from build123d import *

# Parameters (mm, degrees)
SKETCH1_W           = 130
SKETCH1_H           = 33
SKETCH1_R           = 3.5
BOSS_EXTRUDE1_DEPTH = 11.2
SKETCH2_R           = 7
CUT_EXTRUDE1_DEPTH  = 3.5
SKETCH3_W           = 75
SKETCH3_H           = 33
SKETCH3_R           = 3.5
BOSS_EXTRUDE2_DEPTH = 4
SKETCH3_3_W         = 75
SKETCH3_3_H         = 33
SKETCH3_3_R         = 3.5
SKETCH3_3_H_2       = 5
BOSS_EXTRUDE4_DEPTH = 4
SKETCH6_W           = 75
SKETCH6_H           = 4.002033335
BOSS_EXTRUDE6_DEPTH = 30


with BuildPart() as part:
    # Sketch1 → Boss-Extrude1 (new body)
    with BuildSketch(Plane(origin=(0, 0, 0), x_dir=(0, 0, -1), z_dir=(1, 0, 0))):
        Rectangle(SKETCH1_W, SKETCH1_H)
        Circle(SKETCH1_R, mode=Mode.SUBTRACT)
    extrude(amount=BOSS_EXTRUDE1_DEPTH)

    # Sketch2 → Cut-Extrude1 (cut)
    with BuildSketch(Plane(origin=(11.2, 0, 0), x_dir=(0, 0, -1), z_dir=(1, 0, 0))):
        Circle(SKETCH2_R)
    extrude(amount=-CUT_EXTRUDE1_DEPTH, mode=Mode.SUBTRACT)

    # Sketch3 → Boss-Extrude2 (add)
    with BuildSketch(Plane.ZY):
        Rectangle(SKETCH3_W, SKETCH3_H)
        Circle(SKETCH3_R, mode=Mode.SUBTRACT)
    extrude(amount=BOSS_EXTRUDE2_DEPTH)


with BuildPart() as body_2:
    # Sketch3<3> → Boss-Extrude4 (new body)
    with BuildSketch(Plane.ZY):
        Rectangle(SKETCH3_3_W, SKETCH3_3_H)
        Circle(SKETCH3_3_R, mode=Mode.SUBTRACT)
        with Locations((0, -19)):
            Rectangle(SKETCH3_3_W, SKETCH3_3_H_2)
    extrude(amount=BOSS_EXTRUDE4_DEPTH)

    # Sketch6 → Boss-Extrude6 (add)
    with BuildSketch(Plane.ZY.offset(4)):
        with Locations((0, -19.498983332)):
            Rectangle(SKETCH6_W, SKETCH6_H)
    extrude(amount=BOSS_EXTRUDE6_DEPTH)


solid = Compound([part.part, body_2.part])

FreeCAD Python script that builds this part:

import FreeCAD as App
import Part
import Sketcher

V = App.Vector
Q = App.Units.Quantity


def add_polygon(sketch, points):
    """Adds a closed chain of lines whose ends are joined by coincident constraints."""
    first, n = sketch.GeometryCount, len(points)
    for a, b in zip(points, points[1:] + points[:1]):
        sketch.addGeometry(Part.LineSegment(App.Vector(*a, 0), App.Vector(*b, 0)), False)
    for i in range(n):
        sketch.addConstraint(Sketcher.Constraint("Coincident", first + i, 2, first + (i + 1) % n, 1))

doc = App.newDocument("Part")
params = doc.addObject("Spreadsheet::Sheet", "Params")
for row, (alias, value) in enumerate([
    ("sketch1_diameter", "7 mm"),
    ("sketch1_width", "33 mm"),
    ("sketch1_height", "130 mm"),
    ("pad1_length", "11.2 mm"),
    ("sketch2_diameter", "14 mm"),
    ("pocket1_length", "3.5 mm"),
    ("sketch3_diameter", "7 mm"),
    ("sketch3_width", "33 mm"),
    ("sketch3_height", "75 mm"),
    ("pad2_length", "4 mm"),
    ("sketch4_diameter", "7 mm"),
    ("sketch4_width", "38 mm"),
    ("sketch4_height", "75 mm"),
    ("pad3_length", "4 mm"),
    ("sketch5_height", "75 mm"),
    ("pad4_length", "30 mm"),
], start=1):
    params.set(f"A{row}", alias)
    params.set(f"B{row}", "=" + value)
    params.setAlias(f"B{row}", alias)

body = doc.addObject("PartDesign::Body", "Body")

# Sketch on YZ plane
sketch1 = doc.addObject("Sketcher::SketchObject", "Sketch")
body.addObject(sketch1)
sketch1.AttachmentSupport = (doc.YZ_Plane, [""])
sketch1.MapMode = "FlatFace"
add_polygon(sketch1, [(16.5, 65), (-16.5, 65), (-16.5, -65), (16.5, -65)])  # lines 0-3
sketch1.addGeometry(Part.Circle(V(0, 0, 0), V(0, 0, 1), 3.5), False)  # 4
sketch1.addConstraint(Sketcher.Constraint("Horizontal", 0))
sketch1.addConstraint(Sketcher.Constraint("Vertical", 1))
sketch1.addConstraint(Sketcher.Constraint("Horizontal", 2))
sketch1.addConstraint(Sketcher.Constraint("Vertical", 3))
sketch1.addConstraint(Sketcher.Constraint("Coincident", 4, 3, -1, 1))
sketch1.addConstraint(Sketcher.Constraint("Symmetric", 0, 2, 2, 2, -1, 1))
sketch1.addConstraint(Sketcher.Constraint("Diameter", 4, Q("7 mm")))
sketch1.addConstraint(Sketcher.Constraint("DistanceX", 0, 2, 0, 1, Q("33 mm")))
sketch1.addConstraint(Sketcher.Constraint("DistanceY", 1, 2, 1, 1, Q("130 mm")))
sketch1.setExpression("Constraints[10]", "Params.sketch1_diameter")
sketch1.setExpression("Constraints[11]", "Params.sketch1_width")
sketch1.setExpression("Constraints[12]", "Params.sketch1_height")
pad1 = doc.addObject("PartDesign::Pad", "Pad")
body.addObject(pad1)
pad1.Profile = sketch1
pad1.setExpression("Length", "Params.pad1_length")

# Sketch on YZ plane
sketch2 = doc.addObject("Sketcher::SketchObject", "Sketch001")
body.addObject(sketch2)
sketch2.AttachmentSupport = (doc.YZ_Plane, [""])
sketch2.MapMode = "FlatFace"
sketch2.AttachmentOffset = App.Placement(V(0, 0, 11.2), App.Rotation())
sketch2.addGeometry(Part.Circle(V(0, 0, 0), V(0, 0, 1), 7), False)
sketch2.addConstraint(Sketcher.Constraint("Coincident", 0, 3, -1, 1))
sketch2.addConstraint(Sketcher.Constraint("Diameter", 0, Q("14 mm")))
sketch2.setExpression("Constraints[1]", "Params.sketch2_diameter")
pocket1 = doc.addObject("PartDesign::Pocket", "Pocket")
body.addObject(pocket1)
pocket1.Profile = sketch2
pocket1.setExpression("Length", "Params.pocket1_length")

# Sketch on YZ plane
sketch3 = doc.addObject("Sketcher::SketchObject", "Sketch002")
body.addObject(sketch3)
sketch3.AttachmentSupport = (doc.YZ_Plane, [""])
sketch3.MapMode = "FlatFace"
add_polygon(sketch3, [(16.5, -37.5), (-16.5, -37.5), (-16.5, 37.5), (16.5, 37.5)])  # lines 0-3
sketch3.addGeometry(Part.Circle(V(0, 0, 0), V(0, 0, 1), 3.5), False)  # 4
sketch3.addConstraint(Sketcher.Constraint("Horizontal", 0))
sketch3.addConstraint(Sketcher.Constraint("Vertical", 1))
sketch3.addConstraint(Sketcher.Constraint("Horizontal", 2))
sketch3.addConstraint(Sketcher.Constraint("Vertical", 3))
sketch3.addConstraint(Sketcher.Constraint("Coincident", 4, 3, -1, 1))
sketch3.addConstraint(Sketcher.Constraint("Symmetric", 0, 2, 2, 2, -1, 1))
sketch3.addConstraint(Sketcher.Constraint("Diameter", 4, Q("7 mm")))
sketch3.addConstraint(Sketcher.Constraint("DistanceX", 0, 2, 0, 1, Q("33 mm")))
sketch3.addConstraint(Sketcher.Constraint("DistanceY", 1, 1, 1, 2, Q("75 mm")))
sketch3.setExpression("Constraints[10]", "Params.sketch3_diameter")
sketch3.setExpression("Constraints[11]", "Params.sketch3_width")
sketch3.setExpression("Constraints[12]", "Params.sketch3_height")
pad2 = doc.addObject("PartDesign::Pad", "Pad001")
body.addObject(pad2)
pad2.Profile = sketch3
pad2.setExpression("Length", "Params.pad2_length")
pad2.Reversed = True
body2 = doc.addObject("PartDesign::Body", "Body001")

# Sketch on YZ plane
sketch4 = doc.addObject("Sketcher::SketchObject", "Sketch003")
body2.addObject(sketch4)
sketch4.AttachmentSupport = (doc.getObject("YZ_Plane001"), [""])
sketch4.MapMode = "FlatFace"
add_polygon(sketch4, [(16.5, -37.5), (-21.5, -37.5), (-21.5, 37.5), (16.5, 37.5)])  # lines 0-3
sketch4.addGeometry(Part.Circle(V(0, 0, 0), V(0, 0, 1), 3.5), False)  # 4
sketch4.addConstraint(Sketcher.Constraint("Horizontal", 0))
sketch4.addConstraint(Sketcher.Constraint("Vertical", 1))
sketch4.addConstraint(Sketcher.Constraint("Horizontal", 2))
sketch4.addConstraint(Sketcher.Constraint("Vertical", 3))
sketch4.addConstraint(Sketcher.Constraint("Coincident", 4, 3, -1, 1))
sketch4.addConstraint(Sketcher.Constraint("Diameter", 4, Q("7 mm")))
sketch4.addConstraint(Sketcher.Constraint("DistanceX", 0, 2, 0, 1, Q("38 mm")))
sketch4.addConstraint(Sketcher.Constraint("DistanceY", 1, 1, 1, 2, Q("75 mm")))
sketch4.addConstraint(Sketcher.Constraint("DistanceX", 0, 2, -1, 1, Q("21.5 mm")))
sketch4.addConstraint(Sketcher.Constraint("DistanceY", 0, 2, -1, 1, Q("37.5 mm")))
sketch4.setExpression("Constraints[9]", "Params.sketch4_diameter")
sketch4.setExpression("Constraints[10]", "Params.sketch4_width")
sketch4.setExpression("Constraints[11]", "Params.sketch4_height")
pad3 = doc.addObject("PartDesign::Pad", "Pad002")
body2.addObject(pad3)
pad3.Profile = sketch4
pad3.setExpression("Length", "Params.pad3_length")
pad3.Reversed = True

# Sketch on YZ plane
sketch5 = doc.addObject("Sketcher::SketchObject", "Sketch004")
body2.addObject(sketch5)
sketch5.AttachmentSupport = (doc.getObject("YZ_Plane001"), [""])
sketch5.MapMode = "FlatFace"
sketch5.AttachmentOffset = App.Placement(V(0, 0, -4), App.Rotation())
add_polygon(sketch5, [(-17.497967, -37.5), (-21.5, -37.5), (-21.5, 37.5), (-17.497967, 37.5)])  # lines 0-3
sketch5.addConstraint(Sketcher.Constraint("Horizontal", 0))
sketch5.addConstraint(Sketcher.Constraint("Vertical", 1))
sketch5.addConstraint(Sketcher.Constraint("Horizontal", 2))
sketch5.addConstraint(Sketcher.Constraint("Vertical", 3))
sketch5.addConstraint(Sketcher.Constraint("DistanceY", 1, 1, 1, 2, Q("75 mm")))
sketch5.addConstraint(Sketcher.Constraint("DistanceX", 0, 2, -1, 1, Q("21.5 mm")))
sketch5.addConstraint(Sketcher.Constraint("DistanceY", 0, 2, -1, 1, Q("37.5 mm")))
sketch5.addConstraint(Sketcher.Constraint("DistanceX", 0, 2, 0, 1, Q("4.002033 mm")))
sketch5.setExpression("Constraints[8]", "Params.sketch5_height")
pad4 = doc.addObject("PartDesign::Pad", "Pad003")
body2.addObject(pad4)
pad4.Profile = sketch5
pad4.setExpression("Length", "Params.pad4_length")
pad4.Reversed = True

doc.recompute()
